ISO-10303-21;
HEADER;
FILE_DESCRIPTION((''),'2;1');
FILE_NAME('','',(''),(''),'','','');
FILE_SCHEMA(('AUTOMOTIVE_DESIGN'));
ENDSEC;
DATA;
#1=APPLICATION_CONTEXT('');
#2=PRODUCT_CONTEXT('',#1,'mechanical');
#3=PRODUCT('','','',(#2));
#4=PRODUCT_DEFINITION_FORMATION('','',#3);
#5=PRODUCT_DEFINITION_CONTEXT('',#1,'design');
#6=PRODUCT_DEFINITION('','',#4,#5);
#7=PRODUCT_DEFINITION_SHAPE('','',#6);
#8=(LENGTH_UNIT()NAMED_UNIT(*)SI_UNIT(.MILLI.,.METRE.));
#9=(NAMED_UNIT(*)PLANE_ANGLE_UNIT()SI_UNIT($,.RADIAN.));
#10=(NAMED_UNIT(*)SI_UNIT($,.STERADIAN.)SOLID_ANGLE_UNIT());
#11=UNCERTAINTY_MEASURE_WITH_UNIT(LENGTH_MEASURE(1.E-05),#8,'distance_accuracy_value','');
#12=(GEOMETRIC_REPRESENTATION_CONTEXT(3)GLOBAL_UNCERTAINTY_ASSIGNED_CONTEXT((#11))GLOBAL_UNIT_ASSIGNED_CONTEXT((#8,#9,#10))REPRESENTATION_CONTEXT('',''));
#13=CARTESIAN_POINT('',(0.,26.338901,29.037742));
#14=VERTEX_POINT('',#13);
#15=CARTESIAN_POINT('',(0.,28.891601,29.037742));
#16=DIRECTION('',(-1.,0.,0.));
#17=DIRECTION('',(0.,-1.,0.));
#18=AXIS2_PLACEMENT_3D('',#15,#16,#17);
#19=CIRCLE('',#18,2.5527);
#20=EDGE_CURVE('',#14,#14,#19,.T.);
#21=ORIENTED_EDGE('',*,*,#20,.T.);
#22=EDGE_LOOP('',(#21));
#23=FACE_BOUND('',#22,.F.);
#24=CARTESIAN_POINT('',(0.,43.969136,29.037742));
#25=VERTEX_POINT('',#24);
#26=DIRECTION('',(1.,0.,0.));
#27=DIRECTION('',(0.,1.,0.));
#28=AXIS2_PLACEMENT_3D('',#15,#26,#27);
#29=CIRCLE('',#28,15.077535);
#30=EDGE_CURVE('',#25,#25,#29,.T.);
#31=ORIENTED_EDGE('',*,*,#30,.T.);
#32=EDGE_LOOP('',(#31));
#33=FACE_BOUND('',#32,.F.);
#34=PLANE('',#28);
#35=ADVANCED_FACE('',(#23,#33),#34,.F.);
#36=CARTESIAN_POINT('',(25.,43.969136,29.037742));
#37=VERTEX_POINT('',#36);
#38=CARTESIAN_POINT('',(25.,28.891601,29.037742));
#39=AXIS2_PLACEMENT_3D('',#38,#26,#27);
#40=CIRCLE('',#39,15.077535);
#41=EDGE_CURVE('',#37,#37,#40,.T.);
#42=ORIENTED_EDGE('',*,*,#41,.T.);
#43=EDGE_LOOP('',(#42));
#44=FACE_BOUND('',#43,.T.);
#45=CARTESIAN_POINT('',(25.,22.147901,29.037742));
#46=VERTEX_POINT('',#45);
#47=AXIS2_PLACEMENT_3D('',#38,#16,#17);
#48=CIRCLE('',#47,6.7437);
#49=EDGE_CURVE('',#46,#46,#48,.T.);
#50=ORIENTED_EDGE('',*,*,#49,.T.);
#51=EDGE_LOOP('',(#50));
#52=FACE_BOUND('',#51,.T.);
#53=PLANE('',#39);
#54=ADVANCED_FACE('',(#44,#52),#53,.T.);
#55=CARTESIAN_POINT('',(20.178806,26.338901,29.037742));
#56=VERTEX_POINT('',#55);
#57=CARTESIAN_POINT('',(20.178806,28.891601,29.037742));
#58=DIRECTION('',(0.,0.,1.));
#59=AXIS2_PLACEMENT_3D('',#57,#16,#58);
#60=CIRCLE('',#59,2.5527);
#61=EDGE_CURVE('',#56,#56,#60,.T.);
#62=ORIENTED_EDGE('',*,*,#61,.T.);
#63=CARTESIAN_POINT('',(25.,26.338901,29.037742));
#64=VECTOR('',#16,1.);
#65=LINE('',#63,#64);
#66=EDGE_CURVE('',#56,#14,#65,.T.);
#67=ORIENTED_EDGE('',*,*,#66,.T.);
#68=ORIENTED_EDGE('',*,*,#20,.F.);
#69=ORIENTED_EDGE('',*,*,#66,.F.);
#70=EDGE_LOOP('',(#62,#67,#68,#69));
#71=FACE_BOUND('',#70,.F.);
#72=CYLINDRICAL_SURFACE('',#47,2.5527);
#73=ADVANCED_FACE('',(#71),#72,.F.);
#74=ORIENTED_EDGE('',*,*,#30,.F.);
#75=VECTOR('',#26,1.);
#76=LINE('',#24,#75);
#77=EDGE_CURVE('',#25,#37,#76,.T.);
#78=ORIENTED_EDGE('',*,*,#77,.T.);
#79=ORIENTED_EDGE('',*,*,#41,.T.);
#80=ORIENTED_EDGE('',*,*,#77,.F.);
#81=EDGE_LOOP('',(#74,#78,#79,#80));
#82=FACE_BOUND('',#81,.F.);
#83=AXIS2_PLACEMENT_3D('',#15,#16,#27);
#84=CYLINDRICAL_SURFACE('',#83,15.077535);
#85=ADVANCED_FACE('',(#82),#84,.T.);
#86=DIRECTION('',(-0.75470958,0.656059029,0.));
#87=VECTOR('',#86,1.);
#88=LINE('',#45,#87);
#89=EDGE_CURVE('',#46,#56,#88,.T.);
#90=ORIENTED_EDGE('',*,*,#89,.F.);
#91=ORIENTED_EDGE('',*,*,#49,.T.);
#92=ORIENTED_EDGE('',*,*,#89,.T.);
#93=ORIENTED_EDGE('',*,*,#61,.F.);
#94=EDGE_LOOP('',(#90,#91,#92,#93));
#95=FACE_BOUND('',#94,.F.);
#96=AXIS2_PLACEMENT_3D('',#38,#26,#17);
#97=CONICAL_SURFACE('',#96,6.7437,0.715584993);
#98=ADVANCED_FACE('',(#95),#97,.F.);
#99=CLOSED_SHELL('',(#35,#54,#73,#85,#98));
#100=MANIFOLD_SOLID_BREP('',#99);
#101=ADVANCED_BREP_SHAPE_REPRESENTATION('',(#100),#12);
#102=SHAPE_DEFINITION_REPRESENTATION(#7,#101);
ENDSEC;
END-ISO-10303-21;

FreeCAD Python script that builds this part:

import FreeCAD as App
import Part
import Sketcher
from FreeCAD import Vector
Q = App.Units.Quantity

doc = App.newDocument("Part")
body = doc.addObject("PartDesign::Body", "Body")

# Sketch on YZ plane
sketch1 = doc.addObject("Sketcher::SketchObject", "Sketch")
body.addObject(sketch1)
sketch1.AttachmentSupport = (doc.YZ_Plane, [""])
sketch1.MapMode = "FlatFace"
sketch1.addGeometry(Part.Circle(Vector(29, 29, 0), Vector(0, 0, 1), 15), False)
sketch1.addConstraint([
    Sketcher.Constraint("Diameter", 0, Q("30.15507 mm")),
    Sketcher.Constraint("DistanceX", -1, 1, 0, 3, Q("28.891601 mm")),
    Sketcher.Constraint("DistanceY", -1, 1, 0, 3, Q("29.037742 mm")),
])
pad1 = doc.addObject("PartDesign::Pad", "Pad")
body.addObject(pad1)
pad1.Profile = sketch1
pad1.Length = 25

# Sketch on YZ plane
sketch2 = doc.addObject("Sketcher::SketchObject", "Sketch001")
body.addObject(sketch2)
sketch2.AttachmentSupport = (doc.YZ_Plane, [""])
sketch2.MapMode = "FlatFace"
sketch2.AttachmentOffset = App.Placement(Vector(0, 0, 25), App.Rotation())
sketch2.addGeometry(Part.Circle(Vector(28.9, 29, 0), Vector(0, 0, 1), 2.6), False)
sketch2.addConstraint([
    Sketcher.Constraint("Diameter", 0, Q("5.1054 mm")),
    Sketcher.Constraint("DistanceX", -1, 1, 0, 3, Q("28.891601 mm")),
    Sketcher.Constraint("DistanceY", -1, 1, 0, 3, Q("29.037742 mm")),
])
doc.recompute()
hole = doc.addObject("PartDesign::Hole", "Hole")
body.addObject(hole)
hole.Profile = sketch2
hole.ThreadType = "None"
hole.Diameter = 5.1054
hole.DepthType = "ThroughAll"
hole.HoleCutType = "Countersink"
hole.HoleCutDiameter = 13.4874
hole.HoleCutCountersinkAngle = 82

doc.recompute()
